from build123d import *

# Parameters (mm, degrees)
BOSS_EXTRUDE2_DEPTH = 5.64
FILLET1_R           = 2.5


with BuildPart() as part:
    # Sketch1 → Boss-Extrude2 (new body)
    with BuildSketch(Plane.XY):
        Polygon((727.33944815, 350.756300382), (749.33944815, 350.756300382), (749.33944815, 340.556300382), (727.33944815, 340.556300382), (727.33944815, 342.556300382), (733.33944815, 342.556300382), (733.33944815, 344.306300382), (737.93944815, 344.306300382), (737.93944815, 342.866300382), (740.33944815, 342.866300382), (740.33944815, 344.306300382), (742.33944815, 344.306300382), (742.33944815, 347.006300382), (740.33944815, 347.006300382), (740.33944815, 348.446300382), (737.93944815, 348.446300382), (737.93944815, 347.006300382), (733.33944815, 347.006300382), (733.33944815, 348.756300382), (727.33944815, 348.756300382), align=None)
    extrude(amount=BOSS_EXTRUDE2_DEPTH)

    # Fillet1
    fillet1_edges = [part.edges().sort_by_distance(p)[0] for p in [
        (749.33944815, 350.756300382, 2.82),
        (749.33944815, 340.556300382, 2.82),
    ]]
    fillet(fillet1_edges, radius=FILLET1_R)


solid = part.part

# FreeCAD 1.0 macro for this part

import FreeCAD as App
import Part
import Sketcher
Q = App.Units.Quantity


def edges_at(feature, points):
    """Names of the edges that pass closest to the given points."""
    edges = feature.Shape.Edges
    near = lambda p: min(range(len(edges)), key=lambda i: edges[i].distToShape(Part.Vertex(*p))[0])
    return sorted({f"Edge{near(p) + 1}" for p in points})

doc = App.newDocument("Part")
body = doc.addObject("PartDesign::Body", "Body")

# Sketch on XY plane
sketch1 = body.newObject("Sketcher::SketchObject", "Sketch")
sketch1.AttachmentSupport = (doc.getObject("XY_Plane"), [""])
sketch1.MapMode = "FlatFace"
sketch1.addGeometry([
    Part.LineSegment(App.Vector(749.3, 350.8, 0), App.Vector(727.3, 350.8, 0)),  # 0
    Part.LineSegment(App.Vector(727.3, 350.8, 0), App.Vector(727.3, 348.8, 0)),  # 1
    Part.LineSegment(App.Vector(727.3, 348.8, 0), App.Vector(733.3, 348.8, 0)),  # 2
    Part.LineSegment(App.Vector(733.3, 348.8, 0), App.Vector(733.3, 347, 0)),  # 3
    Part.LineSegment(App.Vector(733.3, 347, 0), App.Vector(737.9, 347, 0)),  # 4
    Part.LineSegment(App.Vector(737.9, 347, 0), App.Vector(737.9, 348.4, 0)),  # 5
    Part.LineSegment(App.Vector(737.9, 348.4, 0), App.Vector(740.3, 348.4, 0)),  # 6
    Part.LineSegment(App.Vector(740.3, 348.4, 0), App.Vector(740.3, 347, 0)),  # 7
    Part.LineSegment(App.Vector(740.3, 347, 0), App.Vector(742.3, 347, 0)),  # 8
    Part.LineSegment(App.Vector(742.3, 347, 0), App.Vector(742.3, 344.3, 0)),  # 9
    Part.LineSegment(App.Vector(742.3, 344.3, 0), App.Vector(740.3, 344.3, 0)),  # 10
    Part.LineSegment(App.Vector(740.3, 344.3, 0), App.Vector(740.3, 342.9, 0)),  # 11
    Part.LineSegment(App.Vector(740.3, 342.9, 0), App.Vector(737.9, 342.9, 0)),  # 12
    Part.LineSegment(App.Vector(737.9, 342.9, 0), App.Vector(737.9, 344.3, 0)),  # 13
    Part.LineSegment(App.Vector(737.9, 344.3, 0), App.Vector(733.3, 344.3, 0)),  # 14
    Part.LineSegment(App.Vector(733.3, 344.3, 0), App.Vector(733.3, 342.6, 0)),  # 15
    Part.LineSegment(App.Vector(733.3, 342.6, 0), App.Vector(727.3, 342.6, 0)),  # 16
    Part.LineSegment(App.Vector(727.3, 342.6, 0), App.Vector(727.3, 340.6, 0)),  # 17
    Part.LineSegment(App.Vector(727.3, 340.6, 0), App.Vector(749.3, 340.6, 0)),  # 18
    Part.LineSegment(App.Vector(749.3, 340.6, 0), App.Vector(749.3, 350.8, 0)),  # 19
], False)
sketch1.addConstraint([
    Sketcher.Constraint("Coincident", 0, 2, 1, 1),
    Sketcher.Constraint("Coincident", 1, 2, 2, 1),
    Sketcher.Constraint("Coincident", 2, 2, 3, 1),
    Sketcher.Constraint("Coincident", 3, 2, 4, 1),
    Sketcher.Constraint("Coincident", 4, 2, 5, 1),
    Sketcher.Constraint("Coincident", 5, 2, 6, 1),
    Sketcher.Constraint("Coincident", 6, 2, 7, 1),
    Sketcher.Constraint("Coincident", 7, 2, 8, 1),
    Sketcher.Constraint("Coincident", 8, 2, 9, 1),
    Sketcher.Constraint("Coincident", 9, 2, 10, 1),
    Sketcher.Constraint("Coincident", 10, 2, 11, 1),
    Sketcher.Constraint("Coincident", 11, 2, 12, 1),
    Sketcher.Constraint("Coincident", 12, 2, 13, 1),
    Sketcher.Constraint("Coincident", 13, 2, 14, 1),
    Sketcher.Constraint("Coincident", 14, 2, 15, 1),
    Sketcher.Constraint("Coincident", 15, 2, 16, 1),
    Sketcher.Constraint("Coincident", 16, 2, 17, 1),
    Sketcher.Constraint("Coincident", 17, 2, 18, 1),
    Sketcher.Constraint("Coincident", 18, 2, 19, 1),
    Sketcher.Constraint("Coincident", 19, 2, 0, 1),
    Sketcher.Constraint("Horizontal", 0),
    Sketcher.Constraint("Vertical", 1),
    Sketcher.Constraint("Horizontal", 2),
    Sketcher.Constraint("Vertical", 3),
    Sketcher.Constraint("Horizontal", 4),
    Sketcher.Constraint("Vertical", 5),
    Sketcher.Constraint("Horizontal", 6),
    Sketcher.Constraint("Vertical", 7),
    Sketcher.Constraint("Horizontal", 8),
    Sketcher.Constraint("Vertical", 9),
    Sketcher.Constraint("Horizontal", 10),
    Sketcher.Constraint("Vertical", 11),
    Sketcher.Constraint("Horizontal", 12),
    Sketcher.Constraint("Vertical", 13),
    Sketcher.Constraint("Horizontal", 14),
    Sketcher.Constraint("Vertical", 15),
    Sketcher.Constraint("Horizontal", 16),
    Sketcher.Constraint("Vertical", 17),
    Sketcher.Constraint("Horizontal", 18),
    Sketcher.Constraint("Vertical", 19),
    Sketcher.Constraint("Horizontal", 4, 2, 7, 2),
    Sketcher.Constraint("Horizontal", 10, 2, 13, 2),
    Sketcher.Constraint("Vertical", 7, 2, 10, 2),
    Sketcher.Constraint("Vertical", 5, 2, 12, 2),
    Sketcher.Constraint("Vertical", 3, 2, 14, 2),
    Sketcher.Constraint("Vertical", 1, 2, 16, 2),
    Sketcher.Constraint("Equal", 10, 1),
    Sketcher.Constraint("Equal", 7, 11),
    Sketcher.Constraint("Equal", 3, 15),
    Sketcher.Constraint("Equal", 1, 17),
    Sketcher.Constraint("DistanceX", 0, 2, 0, 1, Q("22 mm")),
    Sketcher.Constraint("DistanceX", 2, 1, 2, 2, Q("6 mm")),
    Sketcher.Constraint("DistanceX", 8, 1, 8, 2, Q("2 mm")),
    Sketcher.Constraint("DistanceX", 4, 1, 4, 2, Q("4.6 mm")),
    Sketcher.Constraint("DistanceX", 6, 1, 6, 2, Q("2.4 mm")),
    Sketcher.Constraint("DistanceY", 9, 2, 9, 1, Q("2.7 mm")),
    Sketcher.Constraint("DistanceY", 19, 1, 19, 2, Q("10.2 mm")),
    Sketcher.Constraint("DistanceY", 5, 1, 5, 2, Q("1.44 mm")),
    Sketcher.Constraint("DistanceY", -1, 1, 0, 2, Q("350.7563 mm")),
    Sketcher.Constraint("DistanceX", -1, 1, 0, 2, Q("727.339448 mm")),
])
pad1 = body.newObject("PartDesign::Pad", "Pad")
pad1.Profile = sketch1
pad1.Length = 5.64
doc.recompute()

fillet = body.newObject("PartDesign::Fillet", "Fillet")
fillet.Base = (pad1, edges_at(pad1, [(749.339, 350.756, 2.82), (749.339, 340.556, 2.82)]))
fillet.Radius = 2.5

doc.recompute()
